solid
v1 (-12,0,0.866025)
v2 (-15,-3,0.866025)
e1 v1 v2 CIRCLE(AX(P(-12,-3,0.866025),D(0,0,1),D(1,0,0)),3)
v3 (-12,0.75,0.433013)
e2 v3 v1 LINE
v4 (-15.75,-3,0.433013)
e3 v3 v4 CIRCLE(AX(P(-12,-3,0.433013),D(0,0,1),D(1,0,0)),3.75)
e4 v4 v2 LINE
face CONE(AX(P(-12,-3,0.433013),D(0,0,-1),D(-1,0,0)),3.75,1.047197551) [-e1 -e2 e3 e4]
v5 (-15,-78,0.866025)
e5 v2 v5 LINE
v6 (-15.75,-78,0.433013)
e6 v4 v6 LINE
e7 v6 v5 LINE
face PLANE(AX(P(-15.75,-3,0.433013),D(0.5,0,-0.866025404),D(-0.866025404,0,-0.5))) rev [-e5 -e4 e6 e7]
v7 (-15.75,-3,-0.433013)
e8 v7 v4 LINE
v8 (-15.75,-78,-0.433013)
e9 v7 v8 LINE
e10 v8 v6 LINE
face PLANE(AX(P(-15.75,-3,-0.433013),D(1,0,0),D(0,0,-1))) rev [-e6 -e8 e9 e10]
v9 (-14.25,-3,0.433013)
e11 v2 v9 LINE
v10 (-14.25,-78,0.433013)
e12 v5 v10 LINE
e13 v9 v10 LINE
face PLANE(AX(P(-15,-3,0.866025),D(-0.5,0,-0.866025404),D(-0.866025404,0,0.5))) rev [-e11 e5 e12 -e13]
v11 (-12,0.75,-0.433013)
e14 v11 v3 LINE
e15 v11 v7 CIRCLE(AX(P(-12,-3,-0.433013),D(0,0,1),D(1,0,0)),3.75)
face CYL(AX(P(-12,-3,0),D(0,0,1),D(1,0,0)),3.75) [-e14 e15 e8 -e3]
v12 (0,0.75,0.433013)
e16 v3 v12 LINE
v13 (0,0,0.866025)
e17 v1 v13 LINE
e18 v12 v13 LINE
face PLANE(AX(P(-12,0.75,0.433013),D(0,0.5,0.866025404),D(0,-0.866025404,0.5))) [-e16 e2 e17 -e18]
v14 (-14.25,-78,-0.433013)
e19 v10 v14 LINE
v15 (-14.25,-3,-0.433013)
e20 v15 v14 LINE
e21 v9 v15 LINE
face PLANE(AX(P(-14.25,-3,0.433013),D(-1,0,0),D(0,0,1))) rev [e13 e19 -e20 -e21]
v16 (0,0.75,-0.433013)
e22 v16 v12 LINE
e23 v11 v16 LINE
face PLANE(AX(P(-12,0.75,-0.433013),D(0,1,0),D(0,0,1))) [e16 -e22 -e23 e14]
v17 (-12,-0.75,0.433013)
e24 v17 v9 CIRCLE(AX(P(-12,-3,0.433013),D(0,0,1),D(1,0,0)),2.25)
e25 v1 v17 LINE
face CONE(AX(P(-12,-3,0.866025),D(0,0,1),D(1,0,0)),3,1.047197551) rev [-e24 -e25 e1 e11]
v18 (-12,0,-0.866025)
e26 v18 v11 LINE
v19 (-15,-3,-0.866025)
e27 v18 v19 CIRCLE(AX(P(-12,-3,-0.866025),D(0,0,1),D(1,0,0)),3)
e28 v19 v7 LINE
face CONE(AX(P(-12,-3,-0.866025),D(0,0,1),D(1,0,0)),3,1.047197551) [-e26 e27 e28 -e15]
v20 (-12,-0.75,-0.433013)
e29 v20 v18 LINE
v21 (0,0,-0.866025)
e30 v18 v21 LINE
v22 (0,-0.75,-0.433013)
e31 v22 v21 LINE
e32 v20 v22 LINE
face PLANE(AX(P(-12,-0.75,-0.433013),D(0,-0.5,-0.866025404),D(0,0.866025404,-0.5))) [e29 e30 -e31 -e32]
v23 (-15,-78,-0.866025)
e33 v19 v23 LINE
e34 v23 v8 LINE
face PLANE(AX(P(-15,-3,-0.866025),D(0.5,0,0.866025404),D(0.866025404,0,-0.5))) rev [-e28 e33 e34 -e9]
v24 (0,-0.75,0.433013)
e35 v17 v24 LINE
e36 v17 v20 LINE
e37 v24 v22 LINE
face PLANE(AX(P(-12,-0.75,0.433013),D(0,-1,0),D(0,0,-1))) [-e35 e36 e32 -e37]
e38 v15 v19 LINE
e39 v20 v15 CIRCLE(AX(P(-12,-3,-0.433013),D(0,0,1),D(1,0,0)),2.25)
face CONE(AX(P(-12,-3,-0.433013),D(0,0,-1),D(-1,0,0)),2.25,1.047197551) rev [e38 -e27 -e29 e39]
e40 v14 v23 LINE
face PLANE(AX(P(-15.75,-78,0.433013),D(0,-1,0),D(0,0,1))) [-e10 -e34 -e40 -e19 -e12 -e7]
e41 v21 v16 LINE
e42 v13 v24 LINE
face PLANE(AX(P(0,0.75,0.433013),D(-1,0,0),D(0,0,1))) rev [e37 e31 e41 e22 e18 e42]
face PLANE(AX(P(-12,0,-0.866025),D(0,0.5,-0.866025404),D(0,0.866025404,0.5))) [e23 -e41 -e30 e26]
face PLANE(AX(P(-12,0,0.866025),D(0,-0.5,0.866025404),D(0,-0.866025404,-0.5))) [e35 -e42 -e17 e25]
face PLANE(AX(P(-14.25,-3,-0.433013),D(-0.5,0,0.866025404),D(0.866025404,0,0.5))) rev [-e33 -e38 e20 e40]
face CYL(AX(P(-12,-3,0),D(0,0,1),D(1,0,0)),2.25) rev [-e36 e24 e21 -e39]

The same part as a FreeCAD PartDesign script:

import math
import FreeCAD as App
import Part
import Sketcher
Q = App.Units.Quantity


def add_polygon(sketch, points):
    """Adds a closed chain of lines whose ends are joined by coincident constraints."""
    first, n = sketch.GeometryCount, len(points)
    for a, b in zip(points, points[1:] + points[:1]):
        sketch.addGeometry(Part.LineSegment(App.Vector(*a, 0), App.Vector(*b, 0)), False)
    for i in range(n):
        sketch.addConstraint(Sketcher.Constraint("Coincident", first + i, 2, first + (i + 1) % n, 1))

doc = App.newDocument("Part")
body = doc.addObject("PartDesign::Body", "Body")

# Sketch on YZ plane
sketch1 = body.newObject("Sketcher::SketchObject", "Sketch")
sketch1.AttachmentSupport = (doc.getObject("YZ_Plane"), [""])
sketch1.MapMode = "FlatFace"
add_polygon(sketch1, [(0, 0.9), (-0.8, 0.4), (-0.8, -0.4), (0, -0.9), (0.8, -0.4), (0.8, 0.4)])  # lines 0-5
sketch1.addConstraint([
    Sketcher.Constraint("Vertical", 1),
    Sketcher.Constraint("Vertical", 4),
    Sketcher.Constraint("Symmetric", 0, 2, 3, 2, -1, 1),
    Sketcher.Constraint("Symmetric", 2, 2, 5, 2, -1, 1),
    Sketcher.Constraint("PointOnObject", 2, 2, -2),
    Sketcher.Constraint("Parallel", 2, 5),
    Sketcher.Constraint("Horizontal", 1, 2, 3, 2),
    Sketcher.Constraint("Angle", 0, Q("-150 deg")),
    Sketcher.Constraint("DistanceX", 1, 2, 3, 2, Q("1.5 mm")),
    Sketcher.Constraint("DistanceY", 1, 2, 1, 1, Q("0.866025 mm")),
])

# Sketch on XY plane
sketch2 = body.newObject("Sketcher::SketchObject", "Sketch001")
sketch2.AttachmentSupport = (doc.getObject("XY_Plane"), [""])
sketch2.MapMode = "FlatFace"
sketch2.addGeometry([
    Part.LineSegment(App.Vector(0, 0, 0), App.Vector(-12, 0, 0)),
    Part.ArcOfCircle(Part.Circle(App.Vector(-12, -3, 0), App.Vector(0, 0, 1), 3), math.radians(90), math.radians(180)),
    Part.LineSegment(App.Vector(-15, -3, 0), App.Vector(-15, -78, 0)),
], False)
sketch2.addConstraint([
    Sketcher.Constraint("Tangent", 0, 2, 1, 1),
    Sketcher.Constraint("Tangent", 1, 2, 2, 1),
    Sketcher.Constraint("Horizontal", 0),
    Sketcher.Constraint("Vertical", 2),
    Sketcher.Constraint("Coincident", 0, 1, -1, 1),
    Sketcher.Constraint("Radius", 1, Q("3 mm")),
    Sketcher.Constraint("DistanceX", 0, 2, 0, 1, Q("12 mm")),
    Sketcher.Constraint("DistanceY", 2, 2, 2, 1, Q("75 mm")),
])
doc.recompute()

additivepipe = body.newObject("PartDesign::AdditivePipe", "AdditivePipe")
additivepipe.Profile = sketch1
additivepipe.Spine = (sketch2, ["Edge1", "Edge2", "Edge3"])

doc.recompute()
